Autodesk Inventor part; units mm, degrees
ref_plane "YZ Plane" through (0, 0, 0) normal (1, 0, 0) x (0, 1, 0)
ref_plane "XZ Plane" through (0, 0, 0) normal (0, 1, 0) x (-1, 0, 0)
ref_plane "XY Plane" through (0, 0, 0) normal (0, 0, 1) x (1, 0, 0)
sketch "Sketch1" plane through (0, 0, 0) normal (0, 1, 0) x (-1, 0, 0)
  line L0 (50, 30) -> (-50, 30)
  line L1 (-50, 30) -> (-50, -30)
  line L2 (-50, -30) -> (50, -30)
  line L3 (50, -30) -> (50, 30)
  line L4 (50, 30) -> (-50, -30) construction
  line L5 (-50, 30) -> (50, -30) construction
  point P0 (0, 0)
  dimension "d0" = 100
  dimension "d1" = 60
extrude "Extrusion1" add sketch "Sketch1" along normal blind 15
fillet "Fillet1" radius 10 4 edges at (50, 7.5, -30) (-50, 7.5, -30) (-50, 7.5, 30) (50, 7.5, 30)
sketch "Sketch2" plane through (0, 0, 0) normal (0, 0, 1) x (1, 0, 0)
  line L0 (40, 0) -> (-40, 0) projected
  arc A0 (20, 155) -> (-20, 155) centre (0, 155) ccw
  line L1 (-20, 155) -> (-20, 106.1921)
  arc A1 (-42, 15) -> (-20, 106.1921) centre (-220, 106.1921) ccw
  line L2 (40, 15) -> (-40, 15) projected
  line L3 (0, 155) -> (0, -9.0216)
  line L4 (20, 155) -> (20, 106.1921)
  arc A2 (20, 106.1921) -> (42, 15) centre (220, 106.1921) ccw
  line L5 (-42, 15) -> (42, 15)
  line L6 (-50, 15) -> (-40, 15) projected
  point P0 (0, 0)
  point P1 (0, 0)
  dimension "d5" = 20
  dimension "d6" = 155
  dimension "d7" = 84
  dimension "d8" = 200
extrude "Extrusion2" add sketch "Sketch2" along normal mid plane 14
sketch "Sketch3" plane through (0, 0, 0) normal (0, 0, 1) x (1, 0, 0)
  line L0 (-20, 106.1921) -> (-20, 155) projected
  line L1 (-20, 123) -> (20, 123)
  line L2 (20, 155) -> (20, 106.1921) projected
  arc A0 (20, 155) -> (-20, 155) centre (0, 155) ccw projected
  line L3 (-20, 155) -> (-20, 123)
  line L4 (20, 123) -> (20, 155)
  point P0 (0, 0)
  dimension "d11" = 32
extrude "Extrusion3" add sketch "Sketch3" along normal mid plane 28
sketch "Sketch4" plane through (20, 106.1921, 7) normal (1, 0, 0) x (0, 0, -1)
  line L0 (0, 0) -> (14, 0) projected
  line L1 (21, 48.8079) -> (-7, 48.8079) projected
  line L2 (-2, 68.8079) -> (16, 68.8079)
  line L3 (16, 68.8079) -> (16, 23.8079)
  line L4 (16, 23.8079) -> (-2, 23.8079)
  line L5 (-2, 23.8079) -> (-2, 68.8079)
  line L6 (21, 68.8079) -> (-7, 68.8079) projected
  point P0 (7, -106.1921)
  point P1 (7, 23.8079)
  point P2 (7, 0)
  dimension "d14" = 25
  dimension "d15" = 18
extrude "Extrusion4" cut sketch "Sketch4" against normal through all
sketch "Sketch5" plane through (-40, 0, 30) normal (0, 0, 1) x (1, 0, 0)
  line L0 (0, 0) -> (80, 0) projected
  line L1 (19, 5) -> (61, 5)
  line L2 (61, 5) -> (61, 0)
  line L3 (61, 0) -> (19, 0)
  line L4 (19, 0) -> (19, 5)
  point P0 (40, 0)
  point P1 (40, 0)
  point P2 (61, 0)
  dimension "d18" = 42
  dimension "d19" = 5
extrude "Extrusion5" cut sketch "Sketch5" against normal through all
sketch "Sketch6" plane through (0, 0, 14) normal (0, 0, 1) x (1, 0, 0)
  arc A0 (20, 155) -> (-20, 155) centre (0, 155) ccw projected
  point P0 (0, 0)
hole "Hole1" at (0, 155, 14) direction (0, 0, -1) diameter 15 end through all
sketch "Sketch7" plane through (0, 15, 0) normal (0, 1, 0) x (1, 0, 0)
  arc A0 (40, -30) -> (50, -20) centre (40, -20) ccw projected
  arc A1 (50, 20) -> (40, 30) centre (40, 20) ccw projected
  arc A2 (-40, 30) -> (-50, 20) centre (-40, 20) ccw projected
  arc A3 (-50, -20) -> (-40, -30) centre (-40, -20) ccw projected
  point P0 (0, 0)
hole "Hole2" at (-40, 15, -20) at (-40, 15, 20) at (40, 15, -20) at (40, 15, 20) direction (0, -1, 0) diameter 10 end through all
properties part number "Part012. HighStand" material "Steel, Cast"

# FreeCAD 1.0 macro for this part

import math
import FreeCAD as App
import Part
import Sketcher

V = App.Vector


def edges_at(feature, points):
    """Names of the edges that pass closest to the given points."""
    edges = feature.Shape.Edges
    near = lambda p: min(range(len(edges)), key=lambda i: edges[i].distToShape(Part.Vertex(*p))[0])
    return sorted({f"Edge{near(p) + 1}" for p in points})


def add_polygon(sketch, points):
    """Adds a closed chain of lines whose ends are joined by coincident constraints."""
    first, n = sketch.GeometryCount, len(points)
    for a, b in zip(points, points[1:] + points[:1]):
        sketch.addGeometry(Part.LineSegment(App.Vector(*a, 0), App.Vector(*b, 0)), False)
    for i in range(n):
        sketch.addConstraint(Sketcher.Constraint("Coincident", first + i, 2, first + (i + 1) % n, 1))

doc = App.newDocument("Part")
body = doc.addObject("PartDesign::Body", "Body")

sketch1 = body.newObject("Sketcher::SketchObject", "Sketch")
sketch1.AttachmentSupport = (doc.getObject("XZ_Plane"), [""])
sketch1.MapMode = "FlatFace"
add_polygon(sketch1, [(-50, -30), (-50, 30), (50, 30), (50, -30)])
sketch1.addConstraint(Sketcher.Constraint("Vertical", 0))
sketch1.addConstraint(Sketcher.Constraint("Horizontal", 1))
sketch1.addConstraint(Sketcher.Constraint("Vertical", 2))
sketch1.addConstraint(Sketcher.Constraint("Horizontal", 3))
sketch1.addConstraint(Sketcher.Constraint("Symmetric", 0, 2, 2, 2, -1, 1))
sketch1.addConstraint(Sketcher.Constraint("DistanceX", 1, 1, 1, 2, 100.0))
sketch1.addConstraint(Sketcher.Constraint("DistanceY", 0, 1, 0, 2, 60.0))
pad1 = body.newObject("PartDesign::Pad", "Pad")
pad1.Profile = sketch1
pad1.Length = 15
pad1.Reversed = True
doc.recompute()

fillet = body.newObject("PartDesign::Fillet", "Fillet")
fillet.Base = (pad1, edges_at(pad1, [
    (50, 7.5, -30),
    (-50, 7.5, -30),
    (-50, 7.5, 30),
    (50, 7.5, 30),
]))
fillet.Radius = 10

sketch2 = body.newObject("Sketcher::SketchObject", "Sketch001")
sketch2.AttachmentSupport = (doc.getObject("XY_Plane"), [""])
sketch2.MapMode = "FlatFace"
sketch2.addGeometry(Part.LineSegment(V(20, 106.1921, 0), V(20, 155, 0)), False)
sketch2.addGeometry(Part.ArcOfCircle(Part.Circle(V(0, 155, 0), V(0, 0, 1), 20), math.radians(0), math.radians(180)), False)
sketch2.addGeometry(Part.LineSegment(V(-20, 155, 0), V(-20, 106.1921, 0)), False)
sketch2.addGeometry(Part.ArcOfCircle(Part.Circle(V(-220, 106.1921, 0), V(0, 0, 1), 199.999998), math.radians(-27.126752), math.radians(0)), False)
sketch2.addGeometry(Part.LineSegment(V(-42, 15, 0), V(42, 15, 0)), False)
sketch2.addGeometry(Part.ArcOfCircle(Part.Circle(V(220, 106.1921, 0), V(0, 0, 1), 200), math.radians(180), math.radians(207.126752)), False)
sketch2.addConstraint(Sketcher.Constraint("Tangent", 0, 2, 1, 1))
sketch2.addConstraint(Sketcher.Constraint("Tangent", 1, 2, 2, 1))
sketch2.addConstraint(Sketcher.Constraint("Tangent", 2, 2, 3, 2))
sketch2.addConstraint(Sketcher.Constraint("Coincident", 3, 1, 4, 1))
sketch2.addConstraint(Sketcher.Constraint("Coincident", 4, 2, 5, 2))
sketch2.addConstraint(Sketcher.Constraint("Tangent", 5, 1, 0, 1))
sketch2.addConstraint(Sketcher.Constraint("Vertical", 0))
sketch2.addConstraint(Sketcher.Constraint("Vertical", 2))
sketch2.addConstraint(Sketcher.Constraint("Horizontal", 4))
sketch2.addConstraint(Sketcher.Constraint("Equal", 3, 5))
sketch2.addConstraint(Sketcher.Constraint("Symmetric", 3, 3, 5, 3, -2))
sketch2.addConstraint(Sketcher.Constraint("Radius", 1, 20.0))
sketch2.addConstraint(Sketcher.Constraint("Radius", 3, 200.0))
sketch2.addConstraint(Sketcher.Constraint("DistanceX", 4, 1, 4, 2, 84.0))
sketch2.addConstraint(Sketcher.Constraint("DistanceY", -1, 1, 1, 3, 155.0))
sketch2.addConstraint(Sketcher.Constraint("DistanceY", -1, 1, 3, 1, 15.0))
pad2 = body.newObject("PartDesign::Pad", "Pad001")
pad2.Profile = sketch2
pad2.Length = 14
pad2.Midplane = True

sketch3 = body.newObject("Sketcher::SketchObject", "Sketch002")
sketch3.AttachmentSupport = (doc.getObject("XY_Plane"), [""])
sketch3.MapMode = "FlatFace"
sketch3.addGeometry(Part.LineSegment(V(-20, 155, 0), V(-20, 123, 0)), False)
sketch3.addGeometry(Part.LineSegment(V(-20, 123, 0), V(20, 123, 0)), False)
sketch3.addGeometry(Part.LineSegment(V(20, 123, 0), V(20, 155, 0)), False)
sketch3.addGeometry(Part.ArcOfCircle(Part.Circle(V(0, 155, 0), V(0, 0, 1), 20), math.radians(0), math.radians(180)), False)
sketch3.addConstraint(Sketcher.Constraint("Coincident", 0, 2, 1, 1))
sketch3.addConstraint(Sketcher.Constraint("Coincident", 1, 2, 2, 1))
sketch3.addConstraint(Sketcher.Constraint("Tangent", 2, 2, 3, 1))
sketch3.addConstraint(Sketcher.Constraint("Tangent", 3, 2, 0, 1))
sketch3.addConstraint(Sketcher.Constraint("Vertical", 0))
sketch3.addConstraint(Sketcher.Constraint("Horizontal", 1))
sketch3.addConstraint(Sketcher.Constraint("Vertical", 2))
sketch3.addConstraint(Sketcher.Constraint("PointOnObject", 3, 3, -2))
sketch3.addConstraint(Sketcher.Constraint("DistanceY", 0, 2, 0, 1, 32.0))
sketch3.addConstraint(Sketcher.Constraint("Radius", 3, 20.0))
sketch3.addConstraint(Sketcher.Constraint("DistanceY", -1, 1, 3, 3, 155.0))
pad3 = body.newObject("PartDesign::Pad", "Pad002")
pad3.Profile = sketch3
pad3.Length = 28
pad3.Midplane = True

sketch4 = body.newObject("Sketcher::SketchObject", "Sketch003")
sketch4.AttachmentSupport = (doc.getObject("YZ_Plane"), [""])
sketch4.MapMode = "FlatFace"
sketch4.AttachmentOffset = App.Placement(V(0, 0, 20), App.Rotation())
add_polygon(sketch4, [(130, -9), (175, -9), (175, 9), (130, 9)])
sketch4.addConstraint(Sketcher.Constraint("Horizontal", 0))
sketch4.addConstraint(Sketcher.Constraint("Vertical", 1))
sketch4.addConstraint(Sketcher.Constraint("Horizontal", 2))
sketch4.addConstraint(Sketcher.Constraint("Vertical", 3))
sketch4.addConstraint(Sketcher.Constraint("DistanceY", 1, 1, 1, 2, 18.0))
sketch4.addConstraint(Sketcher.Constraint("DistanceX", 0, 1, 0, 2, 45.0))
sketch4.addConstraint(Sketcher.Constraint("DistanceX", -1, 1, 0, 2, 175.0))
sketch4.addConstraint(Sketcher.Constraint("DistanceY", 0, 2, -1, 1, 9.0))
pocket1 = body.newObject("PartDesign::Pocket", "Pocket")
pocket1.Profile = sketch4
pocket1.Type = "ThroughAll"

sketch5 = body.newObject("Sketcher::SketchObject", "Sketch004")
sketch5.AttachmentSupport = (doc.getObject("XY_Plane"), [""])
sketch5.MapMode = "FlatFace"
sketch5.AttachmentOffset = App.Placement(V(0, 0, 30), App.Rotation())
add_polygon(sketch5, [(-21, 5), (-21, 0), (21, 0), (21, 5)])
sketch5.addConstraint(Sketcher.Constraint("Vertical", 0))
sketch5.addConstraint(Sketcher.Constraint("Horizontal", 1))
sketch5.addConstraint(Sketcher.Constraint("Vertical", 2))
sketch5.addConstraint(Sketcher.Constraint("Horizontal", 3))
sketch5.addConstraint(Sketcher.Constraint("Symmetric", 0, 2, 1, 2, -1, 1))
sketch5.addConstraint(Sketcher.Constraint("DistanceX", 1, 1, 1, 2, 42.0))
sketch5.addConstraint(Sketcher.Constraint("DistanceY", 0, 2, 0, 1, 5.0))
pocket2 = body.newObject("PartDesign::Pocket", "Pocket001")
pocket2.Profile = sketch5
pocket2.Type = "ThroughAll"

sketch6 = body.newObject("Sketcher::SketchObject", "Sketch005")
sketch6.AttachmentSupport = (doc.getObject("XY_Plane"), [""])
sketch6.MapMode = "FlatFace"
sketch6.AttachmentOffset = App.Placement(V(0, 0, 14), App.Rotation())
sketch6.addGeometry(Part.Circle(V(0, 155, 0), V(0, 0, 1), 7.5), False)
sketch6.addConstraint(Sketcher.Constraint("PointOnObject", 0, 3, -2))
sketch6.addConstraint(Sketcher.Constraint("Diameter", 0, 15.0))
sketch6.addConstraint(Sketcher.Constraint("DistanceY", -1, 1, 0, 3, 155.0))
doc.recompute()
hole = body.newObject("PartDesign::Hole", "Hole")
hole.Profile = sketch6
hole.ThreadType = "None"
hole.Diameter = 15
hole.DepthType = "ThroughAll"

sketch7 = body.newObject("Sketcher::SketchObject", "Sketch006")
sketch7.AttachmentSupport = (doc.getObject("XZ_Plane"), [""])
sketch7.MapMode = "FlatFace"
sketch7.AttachmentOffset = App.Placement(V(0, 0, -15), App.Rotation())
sketch7.addGeometry(Part.Circle(V(-40, -20, 0), V(0, 0, 1), 5), False)
sketch7.addGeometry(Part.Circle(V(-40, 20, 0), V(0, 0, 1), 5), False)
sketch7.addGeometry(Part.Circle(V(40, -20, 0), V(0, 0, 1), 5), False)
sketch7.addGeometry(Part.Circle(V(40, 20, 0), V(0, 0, 1), 5), False)
sketch7.addConstraint(Sketcher.Constraint("Equal", 0, 1))
sketch7.addConstraint(Sketcher.Constraint("Equal", 1, 2))
sketch7.addConstraint(Sketcher.Constraint("Equal", 2, 3))
sketch7.addConstraint(Sketcher.Constraint("Symmetric", 1, 3, 2, 3, -1, 1))
sketch7.addConstraint(Sketcher.Constraint("Symmetric", 0, 3, 3, 3, -1, 1))
sketch7.addConstraint(Sketcher.Constraint("Symmetric", 0, 3, 2, 3, -2))
sketch7.addConstraint(Sketcher.Constraint("Diameter", 0, 10.0))
sketch7.addConstraint(Sketcher.Constraint("DistanceX", 0, 3, -1, 1, 40.0))
sketch7.addConstraint(Sketcher.Constraint("DistanceY", 0, 3, -1, 1, 20.0))
doc.recompute()
hole2 = body.newObject("PartDesign::Hole", "Hole001")
hole2.Profile = sketch7
hole2.ThreadType = "None"
hole2.Diameter = 10
hole2.DepthType = "ThroughAll"
hole2.Reversed = True

doc.recompute()
